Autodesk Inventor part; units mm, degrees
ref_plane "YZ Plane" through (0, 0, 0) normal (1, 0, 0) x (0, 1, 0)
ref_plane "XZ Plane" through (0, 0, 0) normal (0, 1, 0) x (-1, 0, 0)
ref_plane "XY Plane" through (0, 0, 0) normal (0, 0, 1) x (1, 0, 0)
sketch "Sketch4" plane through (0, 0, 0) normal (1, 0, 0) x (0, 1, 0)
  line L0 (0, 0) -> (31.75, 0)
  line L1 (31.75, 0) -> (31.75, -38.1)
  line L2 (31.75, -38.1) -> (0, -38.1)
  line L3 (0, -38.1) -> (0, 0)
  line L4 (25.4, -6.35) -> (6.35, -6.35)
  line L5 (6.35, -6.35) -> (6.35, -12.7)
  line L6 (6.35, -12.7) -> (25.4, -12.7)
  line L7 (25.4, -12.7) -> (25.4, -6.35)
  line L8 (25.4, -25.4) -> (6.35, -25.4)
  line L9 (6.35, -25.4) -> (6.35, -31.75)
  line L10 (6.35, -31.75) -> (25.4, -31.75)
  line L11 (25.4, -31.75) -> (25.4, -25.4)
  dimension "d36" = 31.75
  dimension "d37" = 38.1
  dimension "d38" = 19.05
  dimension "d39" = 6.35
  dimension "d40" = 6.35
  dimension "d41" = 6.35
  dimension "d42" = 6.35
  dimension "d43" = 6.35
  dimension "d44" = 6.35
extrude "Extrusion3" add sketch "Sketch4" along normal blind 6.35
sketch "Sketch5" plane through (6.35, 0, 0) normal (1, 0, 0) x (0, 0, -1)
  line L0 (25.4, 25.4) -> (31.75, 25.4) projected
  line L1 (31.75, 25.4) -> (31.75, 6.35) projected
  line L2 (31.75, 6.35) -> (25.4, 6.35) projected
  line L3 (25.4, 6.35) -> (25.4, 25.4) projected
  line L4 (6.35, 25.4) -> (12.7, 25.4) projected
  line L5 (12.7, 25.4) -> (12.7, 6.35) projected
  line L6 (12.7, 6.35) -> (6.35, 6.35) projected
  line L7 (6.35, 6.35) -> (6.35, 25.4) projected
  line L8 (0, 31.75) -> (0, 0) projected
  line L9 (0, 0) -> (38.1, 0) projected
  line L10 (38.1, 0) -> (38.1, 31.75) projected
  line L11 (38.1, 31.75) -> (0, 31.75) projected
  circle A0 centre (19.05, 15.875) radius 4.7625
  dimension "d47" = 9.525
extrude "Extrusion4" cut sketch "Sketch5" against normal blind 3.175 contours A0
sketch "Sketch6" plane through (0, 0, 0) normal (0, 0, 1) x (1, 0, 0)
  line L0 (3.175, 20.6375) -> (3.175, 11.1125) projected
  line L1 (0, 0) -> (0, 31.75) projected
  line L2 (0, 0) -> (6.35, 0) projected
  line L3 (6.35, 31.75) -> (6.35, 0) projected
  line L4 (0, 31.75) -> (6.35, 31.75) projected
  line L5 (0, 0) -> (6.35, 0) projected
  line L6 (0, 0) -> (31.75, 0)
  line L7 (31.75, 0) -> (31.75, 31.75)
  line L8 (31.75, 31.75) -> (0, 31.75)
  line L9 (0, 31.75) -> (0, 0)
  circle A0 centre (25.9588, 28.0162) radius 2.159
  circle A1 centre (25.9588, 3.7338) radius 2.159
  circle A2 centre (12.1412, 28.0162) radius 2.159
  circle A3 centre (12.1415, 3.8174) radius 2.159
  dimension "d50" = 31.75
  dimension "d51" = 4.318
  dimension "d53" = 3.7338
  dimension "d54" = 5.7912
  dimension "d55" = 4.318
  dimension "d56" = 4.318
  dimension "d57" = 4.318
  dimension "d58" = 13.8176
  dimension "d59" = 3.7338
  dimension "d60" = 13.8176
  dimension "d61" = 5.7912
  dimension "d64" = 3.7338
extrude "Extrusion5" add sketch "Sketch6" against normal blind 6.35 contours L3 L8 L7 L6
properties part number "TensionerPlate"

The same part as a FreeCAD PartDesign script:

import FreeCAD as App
import Part
import Sketcher
from FreeCAD import Vector
Q = App.Units.Quantity


def add_polygon(sketch, points):
    """Adds a closed chain of lines whose ends are joined by coincident constraints."""
    first, n = sketch.GeometryCount, len(points)
    for a, b in zip(points, points[1:] + points[:1]):
        sketch.addGeometry(Part.LineSegment(App.Vector(*a, 0), App.Vector(*b, 0)), False)
    for i in range(n):
        sketch.addConstraint(Sketcher.Constraint("Coincident", first + i, 2, first + (i + 1) % n, 1))

doc = App.newDocument("Part")
body = doc.addObject("PartDesign::Body", "Body")

sketch1 = doc.addObject("Sketcher::SketchObject", "Sketch")
body.addObject(sketch1)
sketch1.AttachmentSupport = (doc.YZ_Plane, [""])
sketch1.MapMode = "FlatFace"
add_polygon(sketch1, [(32, 0), (0, 0), (0, -38), (32, -38)])
add_polygon(sketch1, [(6, -25), (25, -25), (25, -32), (6, -32)])
add_polygon(sketch1, [(6, -6), (25, -6), (25, -13), (6, -13)])
sketch1.addConstraint([
    Sketcher.Constraint("Horizontal", 0),
    Sketcher.Constraint("Vertical", 1),
    Sketcher.Constraint("Horizontal", 2),
    Sketcher.Constraint("Vertical", 3),
    Sketcher.Constraint("Horizontal", 4),
    Sketcher.Constraint("Vertical", 5),
    Sketcher.Constraint("Horizontal", 6),
    Sketcher.Constraint("Vertical", 7),
    Sketcher.Constraint("Horizontal", 8),
    Sketcher.Constraint("Vertical", 9),
    Sketcher.Constraint("Horizontal", 10),
    Sketcher.Constraint("Vertical", 11),
    Sketcher.Constraint("Coincident", 0, 2, -1, 1),
    Sketcher.Constraint("Vertical", 5, 2, 8, 2),
    Sketcher.Constraint("Vertical", 7, 2, 10, 2),
    Sketcher.Constraint("Equal", 7, 9),
    Sketcher.Constraint("DistanceY", 1, 2, 1, 1, Q("1.5 in")),
    Sketcher.Constraint("DistanceX", 0, 2, 0, 1, Q("1.25 in")),
    Sketcher.Constraint("DistanceX", 4, 1, 4, 2, Q("0.75 in")),
    Sketcher.Constraint("DistanceY", 5, 2, 5, 1, Q("0.25 in")),
    Sketcher.Constraint("DistanceY", 5, 2, -1, 1, Q("1.25 in")),
    Sketcher.Constraint("DistanceX", -1, 1, 6, 2, Q("0.25 in")),
    Sketcher.Constraint("DistanceY", 8, 2, -1, 1, Q("0.25 in")),
])
pad1 = doc.addObject("PartDesign::Pad", "Pad")
body.addObject(pad1)
pad1.Profile = sketch1
pad1.Length = Q("0.25 in")

sketch2 = doc.addObject("Sketcher::SketchObject", "Sketch001")
body.addObject(sketch2)
sketch2.AttachmentSupport = (doc.YZ_Plane, [""])
sketch2.MapMode = "FlatFace"
sketch2.AttachmentOffset = App.Placement(Vector(0, 0, 0.25 * 25.4), App.Rotation())
sketch2.addGeometry(Part.Circle(Vector(15.9, -19.1, 0), Vector(0, 0, 1), 4.8), False)
sketch2.addConstraint([
    Sketcher.Constraint("Diameter", 0, Q("0.375 in")),
    Sketcher.Constraint("DistanceY", 0, 3, -1, 1, Q("0.75 in")),
    Sketcher.Constraint("DistanceX", -1, 1, 0, 3, Q("0.625 in")),
])
pocket1 = doc.addObject("PartDesign::Pocket", "Pocket")
body.addObject(pocket1)
pocket1.Profile = sketch2
pocket1.Length = Q("0.125 in")

sketch3 = doc.addObject("Sketcher::SketchObject", "Sketch002")
body.addObject(sketch3)
sketch3.AttachmentSupport = (doc.XY_Plane, [""])
sketch3.MapMode = "FlatFace"
add_polygon(sketch3, [(6.3, 31.8), (6.3, 0), (31.8, 0), (31.8, 31.8)])
sketch3.addGeometry(Part.Circle(Vector(12.1, 3.8, 0), Vector(0, 0, 1), 2.2), False)
sketch3.addGeometry(Part.Circle(Vector(26, 3.7, 0), Vector(0, 0, 1), 2.2), False)
sketch3.addGeometry(Part.Circle(Vector(12.1, 28, 0), Vector(0, 0, 1), 2.2), False)
sketch3.addGeometry(Part.Circle(Vector(26, 28, 0), Vector(0, 0, 1), 2.2), False)
sketch3.addConstraint([
    Sketcher.Constraint("Vertical", 0),
    Sketcher.Constraint("Horizontal", 1),
    Sketcher.Constraint("Vertical", 2),
    Sketcher.Constraint("Horizontal", 3),
    Sketcher.Constraint("Equal", 4, 5),
    Sketcher.Constraint("Equal", 5, 6),
    Sketcher.Constraint("Equal", 6, 7),
    Sketcher.Constraint("PointOnObject", 0, 2, -1),
    Sketcher.Constraint("Horizontal", 6, 3, 7, 3),
    Sketcher.Constraint("Vertical", 5, 3, 7, 3),
    Sketcher.Constraint("Diameter", 4, Q("0.17 in")),
    Sketcher.Constraint("DistanceY", 0, 2, 0, 1, Q("1.25 in")),
    Sketcher.Constraint("DistanceX", 1, 1, 1, 2, Q("1 in")),
    Sketcher.Constraint("DistanceX", -1, 1, 1, 2, Q("1.25 in")),
    Sketcher.Constraint("DistanceY", -1, 1, 5, 3, Q("0.147 in")),
    Sketcher.Constraint("DistanceX", 4, 3, 5, 3, Q("0.544 in")),
    Sketcher.Constraint("DistanceX", 6, 3, 4, 3, Q("0 in")),
    Sketcher.Constraint("DistanceX", 0, 2, 4, 3, Q("0.228 in")),
    Sketcher.Constraint("DistanceY", 7, 3, 2, 2, Q("0.147 in")),
    Sketcher.Constraint("DistanceY", -1, 1, 4, 3, Q("0.1503 in")),
])
pad2 = doc.addObject("PartDesign::Pad", "Pad001")
body.addObject(pad2)
pad2.Profile = sketch3
pad2.Length = Q("0.25 in")
pad2.Reversed = True

doc.recompute()
